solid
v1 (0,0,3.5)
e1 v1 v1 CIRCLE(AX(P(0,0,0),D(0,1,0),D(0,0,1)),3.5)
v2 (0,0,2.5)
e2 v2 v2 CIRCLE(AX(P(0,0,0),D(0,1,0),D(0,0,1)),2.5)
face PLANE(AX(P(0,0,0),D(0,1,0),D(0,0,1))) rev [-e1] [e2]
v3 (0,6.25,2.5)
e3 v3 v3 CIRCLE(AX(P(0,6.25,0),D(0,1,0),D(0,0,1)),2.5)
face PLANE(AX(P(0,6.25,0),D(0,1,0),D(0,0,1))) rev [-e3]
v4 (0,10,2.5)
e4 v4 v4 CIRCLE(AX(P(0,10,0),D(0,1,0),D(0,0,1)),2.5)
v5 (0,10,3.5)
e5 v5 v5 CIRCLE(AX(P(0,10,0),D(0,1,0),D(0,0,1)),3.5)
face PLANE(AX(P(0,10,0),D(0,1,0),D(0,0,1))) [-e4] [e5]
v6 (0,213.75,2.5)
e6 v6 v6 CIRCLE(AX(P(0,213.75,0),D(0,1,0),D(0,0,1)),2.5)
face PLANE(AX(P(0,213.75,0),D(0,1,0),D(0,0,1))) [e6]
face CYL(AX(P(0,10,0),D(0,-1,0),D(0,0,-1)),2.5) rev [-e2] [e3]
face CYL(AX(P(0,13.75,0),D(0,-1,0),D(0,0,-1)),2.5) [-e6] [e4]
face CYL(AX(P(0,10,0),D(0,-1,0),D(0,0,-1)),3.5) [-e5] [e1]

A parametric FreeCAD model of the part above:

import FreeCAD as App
import Part
import Sketcher
from FreeCAD import Vector
Q = App.Units.Quantity

doc = App.newDocument("Part")
body = doc.addObject("PartDesign::Body", "Body")

sketch1 = body.newObject("Sketcher::SketchObject", "Sketch")
sketch1.AttachmentSupport = (doc.getObject("XZ_Plane"), [""])
sketch1.MapMode = "FlatFace"
sketch1.addGeometry([
    Part.Circle(Vector(0, 0, 0), Vector(0, 0, 1), 3.5),
    Part.Circle(Vector(0, 0, 0), Vector(0, 0, 1), 2.5),
], False)
sketch1.addConstraint([
    Sketcher.Constraint("Coincident", 0, 3, -1, 1),
    Sketcher.Constraint("Coincident", 1, 3, -1, 1),
    Sketcher.Constraint("Diameter", 0, Q("7 mm")),
    Sketcher.Constraint("Diameter", 1, Q("5 mm")),
])
pad1 = body.newObject("PartDesign::Pad", "Pad")
pad1.Profile = sketch1
pad1.Length = 10
pad1.Reversed = True

sketch2 = body.newObject("Sketcher::SketchObject", "Sketch001")
sketch2.AttachmentSupport = (doc.getObject("XZ_Plane"), [""])
sketch2.MapMode = "FlatFace"
sketch2.AttachmentOffset = App.Placement(Vector(0, 0, -10), App.Rotation())
sketch2.addGeometry(Part.Circle(Vector(0, 0, 0), Vector(0, 0, 1), 2.5), False)
sketch2.addConstraint([
    Sketcher.Constraint("Coincident", 0, 3, -1, 1),
    Sketcher.Constraint("Diameter", 0, Q("5 mm")),
])
pad2 = body.newObject("PartDesign::Pad", "Pad001")
pad2.Profile = sketch2
pad2.Length = 7.5
pad2.Midplane = True

sketch3 = body.newObject("Sketcher::SketchObject", "Sketch002")
sketch3.AttachmentSupport = (doc.getObject("XZ_Plane"), [""])
sketch3.MapMode = "FlatFace"
sketch3.AttachmentOffset = App.Placement(Vector(0, 0, -13.75), App.Rotation())
sketch3.addGeometry(Part.Circle(Vector(0, 0, 0), Vector(0, 0, 1), 2.5), False)
sketch3.addConstraint([
    Sketcher.Constraint("Coincident", 0, 3, -1, 1),
    Sketcher.Constraint("Diameter", 0, Q("5 mm")),
])
pad3 = body.newObject("PartDesign::Pad", "Pad002")
pad3.Profile = sketch3
pad3.Length = 200
pad3.Reversed = True

doc.recompute()
